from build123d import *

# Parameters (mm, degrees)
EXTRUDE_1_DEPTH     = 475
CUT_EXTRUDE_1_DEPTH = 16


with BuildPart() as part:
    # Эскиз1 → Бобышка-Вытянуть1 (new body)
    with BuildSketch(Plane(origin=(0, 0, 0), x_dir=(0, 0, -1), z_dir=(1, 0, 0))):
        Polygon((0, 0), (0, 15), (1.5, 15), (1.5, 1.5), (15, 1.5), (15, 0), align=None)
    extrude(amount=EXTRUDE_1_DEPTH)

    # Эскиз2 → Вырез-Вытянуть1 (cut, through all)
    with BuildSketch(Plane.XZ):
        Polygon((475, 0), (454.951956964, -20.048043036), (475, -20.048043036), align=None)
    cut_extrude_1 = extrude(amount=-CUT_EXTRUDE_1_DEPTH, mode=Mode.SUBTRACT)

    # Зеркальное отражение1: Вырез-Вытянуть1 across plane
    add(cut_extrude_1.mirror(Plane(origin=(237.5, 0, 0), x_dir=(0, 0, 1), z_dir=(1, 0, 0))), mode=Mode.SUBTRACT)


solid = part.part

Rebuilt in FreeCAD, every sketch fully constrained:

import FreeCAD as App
import Part
import Sketcher
from FreeCAD import Vector

doc = App.newDocument("Part")
params = doc.addObject("Spreadsheet::Sheet", "Params")
for row, (alias, value) in enumerate([
    ("sketch1_width", "15 mm"),
    ("sketch1_width2", "1.5 mm"),
    ("pad1_length", "475 mm"),
], start=1):
    params.set(f"A{row}", alias)
    params.set(f"B{row}", "=" + value)
    params.setAlias(f"B{row}", alias)

body = doc.addObject("PartDesign::Body", "Body")

# Sketch on YZ plane
sketch1 = body.newObject("Sketcher::SketchObject", "Sketch")
sketch1.AttachmentSupport = (doc.getObject("YZ_Plane"), [""])
sketch1.MapMode = "FlatFace"
sketch1.addGeometry([
    Part.LineSegment(Vector(15, 0, 0), Vector(0, 0, 0)),  # 0
    Part.LineSegment(Vector(0, 0, 0), Vector(0, -15, 0)),  # 1
    Part.LineSegment(Vector(0, -15, 0), Vector(1.5, -15, 0)),  # 2
    Part.LineSegment(Vector(1.5, -15, 0), Vector(1.5, -1.5, 0)),  # 3
    Part.LineSegment(Vector(1.5, -1.5, 0), Vector(15, -1.5, 0)),  # 4
    Part.LineSegment(Vector(15, -1.5, 0), Vector(15, 0, 0)),  # 5
], False)
sketch1.addConstraint([
    Sketcher.Constraint("Coincident", 0, 2, 1, 1),
    Sketcher.Constraint("Coincident", 1, 2, 2, 1),
    Sketcher.Constraint("Coincident", 2, 2, 3, 1),
    Sketcher.Constraint("Coincident", 3, 2, 4, 1),
    Sketcher.Constraint("Coincident", 4, 2, 5, 1),
    Sketcher.Constraint("Coincident", 5, 2, 0, 1),
    Sketcher.Constraint("Horizontal", 0),
    Sketcher.Constraint("Vertical", 1),
    Sketcher.Constraint("Horizontal", 2),
    Sketcher.Constraint("Vertical", 3),
    Sketcher.Constraint("Horizontal", 4),
    Sketcher.Constraint("Vertical", 5),
    Sketcher.Constraint("Coincident", 0, 2, -1, 1),
    Sketcher.Constraint("Equal", 0, 1),
    Sketcher.Constraint("Equal", 4, 3),
    Sketcher.Constraint("DistanceX", 0, 2, 0, 1, 15.0),
    Sketcher.Constraint("DistanceX", 2, 1, 2, 2, 1.5),
])
sketch1.setExpression("Constraints[15]", "Params.sketch1_width")
sketch1.setExpression("Constraints[16]", "Params.sketch1_width2")
pad1 = body.newObject("PartDesign::Pad", "Pad")
pad1.Profile = sketch1
pad1.setExpression("Length", "Params.pad1_length")

# Sketch on XZ plane
sketch2 = body.newObject("Sketcher::SketchObject", "Sketch001")
sketch2.AttachmentSupport = (doc.getObject("XZ_Plane"), [""])
sketch2.MapMode = "FlatFace"
sketch2.addGeometry([
    Part.LineSegment(Vector(475, 0, 0), Vector(455, -20, 0)),
    Part.LineSegment(Vector(455, -20, 0), Vector(475, -20, 0)),
    Part.LineSegment(Vector(475, -20, 0), Vector(475, 0, 0)),
], False)
sketch2.addConstraint([
    Sketcher.Constraint("Coincident", 0, 2, 1, 1),
    Sketcher.Constraint("Coincident", 1, 2, 2, 1),
    Sketcher.Constraint("Coincident", 2, 2, 0, 1),
    Sketcher.Constraint("Horizontal", 1),
    Sketcher.Constraint("Vertical", 2),
    Sketcher.Constraint("PointOnObject", 2, 2, -1),
    Sketcher.Constraint("Equal", 1, 2),
    Sketcher.Constraint("DistanceX", -1, 1, 1, 2, 475.0),
    Sketcher.Constraint("DistanceX", 1, 1, 1, 2, 20.048043),
])
pocket1 = body.newObject("PartDesign::Pocket", "Pocket")
pocket1.Profile = sketch2
pocket1.Type = "ThroughAll"
doc.recompute()

datumplane = body.newObject("PartDesign::Plane", "DatumPlane")
datumplane.AttachmentSupport = (doc.getObject("YZ_Plane"), [""])
datumplane.MapMode = "FlatFace"
datumplane.AttachmentOffset = App.Placement(Vector(0, 0, 237.5), App.Rotation())
mirrored = body.newObject("PartDesign::Mirrored", "Mirrored")
mirrored.Originals = [pocket1]
mirrored.MirrorPlane = (datumplane, [""])
body.Tip = mirrored

doc.recompute()
